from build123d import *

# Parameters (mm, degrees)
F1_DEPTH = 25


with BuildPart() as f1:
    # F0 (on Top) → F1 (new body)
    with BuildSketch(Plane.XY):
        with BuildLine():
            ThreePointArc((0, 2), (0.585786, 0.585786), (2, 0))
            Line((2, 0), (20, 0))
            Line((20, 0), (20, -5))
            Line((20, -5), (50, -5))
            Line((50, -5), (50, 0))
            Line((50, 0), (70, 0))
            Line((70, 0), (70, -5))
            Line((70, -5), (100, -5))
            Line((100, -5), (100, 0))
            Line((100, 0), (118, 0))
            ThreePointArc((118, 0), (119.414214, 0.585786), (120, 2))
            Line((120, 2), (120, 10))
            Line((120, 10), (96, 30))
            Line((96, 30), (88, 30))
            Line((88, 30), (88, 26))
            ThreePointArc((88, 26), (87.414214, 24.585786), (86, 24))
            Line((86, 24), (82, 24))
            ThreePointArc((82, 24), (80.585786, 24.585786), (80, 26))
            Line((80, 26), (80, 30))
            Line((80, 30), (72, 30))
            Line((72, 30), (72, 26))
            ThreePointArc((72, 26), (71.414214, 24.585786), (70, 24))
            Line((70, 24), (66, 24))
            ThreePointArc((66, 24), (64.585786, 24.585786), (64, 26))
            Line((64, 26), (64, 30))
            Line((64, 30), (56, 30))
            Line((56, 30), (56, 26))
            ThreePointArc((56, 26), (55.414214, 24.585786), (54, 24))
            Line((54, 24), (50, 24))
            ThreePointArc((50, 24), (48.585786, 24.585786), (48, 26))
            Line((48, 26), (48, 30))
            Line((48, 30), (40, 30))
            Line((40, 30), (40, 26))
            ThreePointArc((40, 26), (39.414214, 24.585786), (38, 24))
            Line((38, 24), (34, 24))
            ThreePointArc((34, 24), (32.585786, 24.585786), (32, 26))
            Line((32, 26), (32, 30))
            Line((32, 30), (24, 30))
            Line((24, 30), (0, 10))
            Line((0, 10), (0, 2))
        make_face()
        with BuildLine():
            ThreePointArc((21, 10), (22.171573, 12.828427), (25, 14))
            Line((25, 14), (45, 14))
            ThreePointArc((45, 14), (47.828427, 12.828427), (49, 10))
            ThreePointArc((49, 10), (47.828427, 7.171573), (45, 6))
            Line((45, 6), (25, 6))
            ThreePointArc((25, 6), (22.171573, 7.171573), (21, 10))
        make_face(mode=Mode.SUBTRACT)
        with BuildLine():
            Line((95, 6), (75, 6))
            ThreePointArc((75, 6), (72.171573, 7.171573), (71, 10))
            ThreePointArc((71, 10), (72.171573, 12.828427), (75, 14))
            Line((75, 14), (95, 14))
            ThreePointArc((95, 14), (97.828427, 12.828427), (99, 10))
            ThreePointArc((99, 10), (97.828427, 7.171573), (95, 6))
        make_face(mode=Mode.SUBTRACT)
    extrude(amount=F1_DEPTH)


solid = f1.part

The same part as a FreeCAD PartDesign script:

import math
import FreeCAD as App
import Part
import Sketcher
Q = App.Units.Quantity

doc = App.newDocument("Part")
params = doc.addObject("Spreadsheet::Sheet", "Params")
for row, (alias, value) in enumerate([
    ("sketch1_radius", "1.999999 mm"),
    ("sketch1_radius2", "4 mm"),
    ("sketch1_width", "18 mm"),
    ("sketch1_width2", "30 mm"),
    ("sketch1_width3", "20 mm"),
    ("pad1_length", "25 mm"),
], start=1):
    params.set(f"A{row}", alias)
    params.set(f"B{row}", "=" + value)
    params.setAlias(f"B{row}", alias)

body = doc.addObject("PartDesign::Body", "Body")

sketch1 = body.newObject("Sketcher::SketchObject", "Sketch")
sketch1.AttachmentSupport = (doc.getObject("XY_Plane"), [""])
sketch1.MapMode = "FlatFace"
sketch1.addGeometry([
    Part.ArcOfCircle(Part.Circle(App.Vector(1.999999, 1.999999, 0), App.Vector(0, 0, 1), 1.999999), math.radians(179.999957), math.radians(270.000043)),
    Part.LineSegment(App.Vector(2, 0, 0), App.Vector(20, 0, 0)),
    Part.LineSegment(App.Vector(20, 0, 0), App.Vector(20, -5, 0)),
    Part.LineSegment(App.Vector(20, -5, 0), App.Vector(50, -5, 0)),
    Part.LineSegment(App.Vector(50, -5, 0), App.Vector(50, 0, 0)),
    Part.LineSegment(App.Vector(50, 0, 0), App.Vector(70, 0, 0)),
    Part.LineSegment(App.Vector(70, 0, 0), App.Vector(70, -5, 0)),
    Part.LineSegment(App.Vector(70, -5, 0), App.Vector(100, -5, 0)),
    Part.LineSegment(App.Vector(100, -5, 0), App.Vector(100, 0, 0)),
    Part.LineSegment(App.Vector(100, 0, 0), App.Vector(118, 0, 0)),
    Part.ArcOfCircle(Part.Circle(App.Vector(118.000001, 1.999999, 0), App.Vector(0, 0, 1), 1.999999), math.radians(-90.000043), math.radians(0.000043)),
    Part.LineSegment(App.Vector(120, 2, 0), App.Vector(120, 10, 0)),
    Part.LineSegment(App.Vector(120, 10, 0), App.Vector(96, 30, 0)),
    Part.LineSegment(App.Vector(96, 30, 0), App.Vector(88, 30, 0)),
    Part.LineSegment(App.Vector(88, 30, 0), App.Vector(88, 26, 0)),
    Part.ArcOfCircle(Part.Circle(App.Vector(86.000001, 25.999999, 0), App.Vector(0, 0, 1), 1.999999), math.radians(-90.000043), math.radians(0.000043)),
    Part.LineSegment(App.Vector(86, 24, 0), App.Vector(82, 24, 0)),
    Part.ArcOfCircle(Part.Circle(App.Vector(81.999999, 25.999999, 0), App.Vector(0, 0, 1), 1.999999), math.radians(179.999957), math.radians(270.000043)),
    Part.LineSegment(App.Vector(80, 26, 0), App.Vector(80, 30, 0)),
    Part.LineSegment(App.Vector(80, 30, 0), App.Vector(72, 30, 0)),
    Part.LineSegment(App.Vector(72, 30, 0), App.Vector(72, 26, 0)),
    Part.ArcOfCircle(Part.Circle(App.Vector(70.000001, 25.999999, 0), App.Vector(0, 0, 1), 1.999999), math.radians(-90.000043), math.radians(0.000043)),
    Part.LineSegment(App.Vector(70, 24, 0), App.Vector(66, 24, 0)),
    Part.ArcOfCircle(Part.Circle(App.Vector(65.999999, 25.999999, 0), App.Vector(0, 0, 1), 1.999999), math.radians(179.999957), math.radians(270.000043)),
    Part.LineSegment(App.Vector(64, 26, 0), App.Vector(64, 30, 0)),
    Part.LineSegment(App.Vector(64, 30, 0), App.Vector(56, 30, 0)),
    Part.LineSegment(App.Vector(56, 30, 0), App.Vector(56, 26, 0)),
    Part.ArcOfCircle(Part.Circle(App.Vector(54.000001, 25.999999, 0), App.Vector(0, 0, 1), 1.999999), math.radians(-90.000043), math.radians(0.000043)),
    Part.LineSegment(App.Vector(54, 24, 0), App.Vector(50, 24, 0)),
    Part.ArcOfCircle(Part.Circle(App.Vector(49.999999, 25.999999, 0), App.Vector(0, 0, 1), 1.999999), math.radians(179.999957), math.radians(270.000043)),
    Part.LineSegment(App.Vector(48, 26, 0), App.Vector(48, 30, 0)),
    Part.LineSegment(App.Vector(48, 30, 0), App.Vector(40, 30, 0)),
    Part.LineSegment(App.Vector(40, 30, 0), App.Vector(40, 26, 0)),
    Part.ArcOfCircle(Part.Circle(App.Vector(38.000001, 25.999999, 0), App.Vector(0, 0, 1), 1.999999), math.radians(-90.000043), math.radians(0.000043)),
    Part.LineSegment(App.Vector(38, 24, 0), App.Vector(34, 24, 0)),
    Part.ArcOfCircle(Part.Circle(App.Vector(33.999999, 25.999999, 0), App.Vector(0, 0, 1), 1.999999), math.radians(179.999957), math.radians(270.000043)),
    Part.LineSegment(App.Vector(32, 26, 0), App.Vector(32, 30, 0)),
    Part.LineSegment(App.Vector(32, 30, 0), App.Vector(24, 30, 0)),
    Part.LineSegment(App.Vector(24, 30, 0), App.Vector(0, 10, 0)),
    Part.LineSegment(App.Vector(0, 10, 0), App.Vector(0, 2, 0)),
    Part.ArcOfCircle(Part.Circle(App.Vector(25, 10, 0), App.Vector(0, 0, 1), 4), math.radians(-179.999994), math.radians(-90.000006)),
    Part.ArcOfCircle(Part.Circle(App.Vector(25, 10, 0), App.Vector(0, 0, 1), 4), math.radians(90.000006), math.radians(179.999994)),
    Part.LineSegment(App.Vector(25, 14, 0), App.Vector(45, 14, 0)),
    Part.ArcOfCircle(Part.Circle(App.Vector(45, 10, 0), App.Vector(0, 0, 1), 4), math.radians(0.000006), math.radians(89.999994)),
    Part.ArcOfCircle(Part.Circle(App.Vector(45, 10, 0), App.Vector(0, 0, 1), 4), math.radians(-89.999994), math.radians(-0.000006)),
    Part.LineSegment(App.Vector(45, 6, 0), App.Vector(25, 6, 0)),
    Part.ArcOfCircle(Part.Circle(App.Vector(95, 10, 0), App.Vector(0, 0, 1), 4), math.radians(-89.999994), math.radians(-0.000006)),
    Part.LineSegment(App.Vector(95, 6, 0), App.Vector(75, 6, 0)),
    Part.ArcOfCircle(Part.Circle(App.Vector(75, 10, 0), App.Vector(0, 0, 1), 4), math.radians(-179.999994), math.radians(-90.000006)),
    Part.ArcOfCircle(Part.Circle(App.Vector(75, 10, 0), App.Vector(0, 0, 1), 4), math.radians(90.000006), math.radians(179.999994)),
    Part.LineSegment(App.Vector(75, 14, 0), App.Vector(95, 14, 0)),
    Part.ArcOfCircle(Part.Circle(App.Vector(95, 10, 0), App.Vector(0, 0, 1), 4), math.radians(0.000006), math.radians(89.999994)),
], False)
sketch1.addConstraint([
    Sketcher.Constraint("Tangent", 0, 2, 1, 1),
    Sketcher.Constraint("Coincident", 1, 2, 2, 1),
    Sketcher.Constraint("Coincident", 2, 2, 3, 1),
    Sketcher.Constraint("Coincident", 3, 2, 4, 1),
    Sketcher.Constraint("Coincident", 4, 2, 5, 1),
    Sketcher.Constraint("Coincident", 5, 2, 6, 1),
    Sketcher.Constraint("Coincident", 6, 2, 7, 1),
    Sketcher.Constraint("Coincident", 7, 2, 8, 1),
    Sketcher.Constraint("Coincident", 8, 2, 9, 1),
    Sketcher.Constraint("Tangent", 9, 2, 10, 1),
    Sketcher.Constraint("Tangent", 10, 2, 11, 1),
    Sketcher.Constraint("Coincident", 11, 2, 12, 1),
    Sketcher.Constraint("Coincident", 12, 2, 13, 1),
    Sketcher.Constraint("Coincident", 13, 2, 14, 1),
    Sketcher.Constraint("Tangent", 14, 2, 15, 2),
    Sketcher.Constraint("Tangent", 15, 1, 16, 1),
    Sketcher.Constraint("Tangent", 16, 2, 17, 2),
    Sketcher.Constraint("Tangent", 17, 1, 18, 1),
    Sketcher.Constraint("Coincident", 18, 2, 19, 1),
    Sketcher.Constraint("Coincident", 19, 2, 20, 1),
    Sketcher.Constraint("Tangent", 20, 2, 21, 2),
    Sketcher.Constraint("Tangent", 21, 1, 22, 1),
    Sketcher.Constraint("Tangent", 22, 2, 23, 2),
    Sketcher.Constraint("Tangent", 23, 1, 24, 1),
    Sketcher.Constraint("Coincident", 24, 2, 25, 1),
    Sketcher.Constraint("Coincident", 25, 2, 26, 1),
    Sketcher.Constraint("Tangent", 26, 2, 27, 2),
    Sketcher.Constraint("Tangent", 27, 1, 28, 1),
    Sketcher.Constraint("Tangent", 28, 2, 29, 2),
    Sketcher.Constraint("Tangent", 29, 1, 30, 1),
    Sketcher.Constraint("Coincident", 30, 2, 31, 1),
    Sketcher.Constraint("Coincident", 31, 2, 32, 1),
    Sketcher.Constraint("Tangent", 32, 2, 33, 2),
    Sketcher.Constraint("Tangent", 33, 1, 34, 1),
    Sketcher.Constraint("Tangent", 34, 2, 35, 2),
    Sketcher.Constraint("Tangent", 35, 1, 36, 1),
    Sketcher.Constraint("Coincident", 36, 2, 37, 1),
    Sketcher.Constraint("Coincident", 37, 2, 38, 1),
    Sketcher.Constraint("Coincident", 38, 2, 39, 1),
    Sketcher.Constraint("Tangent", 39, 2, 0, 1),
    Sketcher.Constraint("Tangent", 40, 1, 41, 2),
    Sketcher.Constraint("Tangent", 41, 1, 42, 1),
    Sketcher.Constraint("Tangent", 42, 2, 43, 2),
    Sketcher.Constraint("Tangent", 43, 1, 44, 2),
    Sketcher.Constraint("Tangent", 44, 1, 45, 1),
    Sketcher.Constraint("Tangent", 45, 2, 40, 2),
    Sketcher.Constraint("Tangent", 46, 1, 47, 1),
    Sketcher.Constraint("Tangent", 47, 2, 48, 2),
    Sketcher.Constraint("Tangent", 48, 1, 49, 2),
    Sketcher.Constraint("Tangent", 49, 1, 50, 1),
    Sketcher.Constraint("Tangent", 50, 2, 51, 2),
    Sketcher.Constraint("Tangent", 51, 1, 46, 2),
    Sketcher.Constraint("Horizontal", 1),
    Sketcher.Constraint("Vertical", 2),
    Sketcher.Constraint("Horizontal", 3),
    Sketcher.Constraint("Vertical", 4),
    Sketcher.Constraint("Horizontal", 5),
    Sketcher.Constraint("Vertical", 6),
    Sketcher.Constraint("Horizontal", 7),
    Sketcher.Constraint("Vertical", 8),
    Sketcher.Constraint("Horizontal", 9),
    Sketcher.Constraint("Vertical", 11),
    Sketcher.Constraint("Horizontal", 13),
    Sketcher.Constraint("Vertical", 14),
    Sketcher.Constraint("Horizontal", 16),
    Sketcher.Constraint("Vertical", 18),
    Sketcher.Constraint("Horizontal", 19),
    Sketcher.Constraint("Vertical", 20),
    Sketcher.Constraint("Horizontal", 22),
    Sketcher.Constraint("Vertical", 24),
    Sketcher.Constraint("Horizontal", 25),
    Sketcher.Constraint("Vertical", 26),
    Sketcher.Constraint("Horizontal", 28),
    Sketcher.Constraint("Vertical", 30),
    Sketcher.Constraint("Horizontal", 31),
    Sketcher.Constraint("Vertical", 32),
    Sketcher.Constraint("Horizontal", 34),
    Sketcher.Constraint("Vertical", 36),
    Sketcher.Constraint("Horizontal", 37),
    Sketcher.Constraint("Vertical", 39),
    Sketcher.Constraint("Horizontal", 42),
    Sketcher.Constraint("Horizontal", 45),
    Sketcher.Constraint("Horizontal", 47),
    Sketcher.Constraint("Horizontal", 50),
    Sketcher.Constraint("Equal", 0, 10),
    Sketcher.Constraint("Equal", 10, 15),
    Sketcher.Constraint("Equal", 15, 17),
    Sketcher.Constraint("Equal", 17, 21),
    Sketcher.Constraint("Equal", 21, 23),
    Sketcher.Constraint("Equal", 23, 27),
    Sketcher.Constraint("Equal", 27, 29),
    Sketcher.Constraint("Equal", 29, 33),
    Sketcher.Constraint("Equal", 33, 35),
    Sketcher.Constraint("Equal", 40, 41),
    Sketcher.Constraint("Equal", 41, 43),
    Sketcher.Constraint("Equal", 44, 46),
    Sketcher.Constraint("Equal", 46, 48),
    Sketcher.Constraint("Equal", 48, 49),
    Sketcher.Constraint("PointOnObject", 0, 2, -1),
    Sketcher.Constraint("PointOnObject", 4, 2, -1),
    Sketcher.Constraint("PointOnObject", 8, 2, -1),
    Sketcher.Constraint("PointOnObject", 38, 2, -2),
    Sketcher.Constraint("Horizontal", 17, 3, 21, 3),
    Sketcher.Constraint("Horizontal", 23, 3, 27, 3),
    Sketcher.Constraint("Horizontal", 29, 3, 33, 3),
    Sketcher.Constraint("Horizontal", 44, 3, 46, 3),
    Sketcher.Constraint("Horizontal", 3, 2, 6, 2),
    Sketcher.Constraint("Horizontal", 51, 3, 11, 2),
    Sketcher.Constraint("Horizontal", 13, 2, 18, 2),
    Sketcher.Constraint("Horizontal", 19, 2, 24, 2),
    Sketcher.Constraint("Horizontal", 25, 2, 30, 2),
    Sketcher.Constraint("Horizontal", 31, 2, 36, 2),
    Sketcher.Constraint("Horizontal", 11, 2, 38, 2),
    Sketcher.Constraint("Horizontal", 38, 2, 40, 1),
    Sketcher.Constraint("Horizontal", 40, 1, 43, 1),
    Sketcher.Constraint("Horizontal", 43, 1, 48, 1),
    Sketcher.Constraint("Horizontal", 48, 1, 51, 1),
    Sketcher.Constraint("Vertical", 29, 3, 3, 2),
    Sketcher.Constraint("Vertical", 21, 3, 5, 2),
    Sketcher.Constraint("Equal", 3, 7),
    Sketcher.Constraint("Equal", 1, 9),
    Sketcher.Constraint("Equal", 13, 19),
    Sketcher.Constraint("Equal", 16, 22),
    Sketcher.Constraint("Equal", 19, 25),
    Sketcher.Constraint("Equal", 22, 28),
    Sketcher.Constraint("Equal", 25, 31),
    Sketcher.Constraint("Equal", 28, 34),
    Sketcher.Constraint("Equal", 31, 37),
    Sketcher.Constraint("Equal", 5, 42),
    Sketcher.Constraint("Equal", 45, 47),
    Sketcher.Constraint("Equal", 37, 11),
    Sketcher.Constraint("Equal", 34, 14),
    Sketcher.Constraint("Radius", 0, Q("1.999999 mm")),
    Sketcher.Constraint("Radius", 40, Q("4 mm")),
    Sketcher.Constraint("DistanceX", 1, 1, 1, 2, Q("18 mm")),
    Sketcher.Constraint("DistanceX", 3, 1, 3, 2, Q("30 mm")),
    Sketcher.Constraint("DistanceX", 5, 1, 5, 2, Q("20 mm")),
    Sketcher.Constraint("DistanceX", 13, 2, 13, 1, Q("8 mm")),
    Sketcher.Constraint("DistanceY", 2, 2, 2, 1, Q("5 mm")),
    Sketcher.Constraint("DistanceY", -1, 1, 15, 3, Q("25.999999 mm")),
    Sketcher.Constraint("DistanceX", -1, 1, 40, 3, Q("25 mm")),
    Sketcher.Constraint("DistanceX", -1, 1, 46, 3, Q("95 mm")),
])
sketch1.setExpression("Constraints[132]", "Params.sketch1_radius")
sketch1.setExpression("Constraints[133]", "Params.sketch1_radius2")
sketch1.setExpression("Constraints[134]", "Params.sketch1_width")
sketch1.setExpression("Constraints[135]", "Params.sketch1_width2")
sketch1.setExpression("Constraints[136]", "Params.sketch1_width3")
pad1 = body.newObject("PartDesign::Pad", "Pad")
pad1.Profile = sketch1
pad1.setExpression("Length", "Params.pad1_length")

doc.recompute()
